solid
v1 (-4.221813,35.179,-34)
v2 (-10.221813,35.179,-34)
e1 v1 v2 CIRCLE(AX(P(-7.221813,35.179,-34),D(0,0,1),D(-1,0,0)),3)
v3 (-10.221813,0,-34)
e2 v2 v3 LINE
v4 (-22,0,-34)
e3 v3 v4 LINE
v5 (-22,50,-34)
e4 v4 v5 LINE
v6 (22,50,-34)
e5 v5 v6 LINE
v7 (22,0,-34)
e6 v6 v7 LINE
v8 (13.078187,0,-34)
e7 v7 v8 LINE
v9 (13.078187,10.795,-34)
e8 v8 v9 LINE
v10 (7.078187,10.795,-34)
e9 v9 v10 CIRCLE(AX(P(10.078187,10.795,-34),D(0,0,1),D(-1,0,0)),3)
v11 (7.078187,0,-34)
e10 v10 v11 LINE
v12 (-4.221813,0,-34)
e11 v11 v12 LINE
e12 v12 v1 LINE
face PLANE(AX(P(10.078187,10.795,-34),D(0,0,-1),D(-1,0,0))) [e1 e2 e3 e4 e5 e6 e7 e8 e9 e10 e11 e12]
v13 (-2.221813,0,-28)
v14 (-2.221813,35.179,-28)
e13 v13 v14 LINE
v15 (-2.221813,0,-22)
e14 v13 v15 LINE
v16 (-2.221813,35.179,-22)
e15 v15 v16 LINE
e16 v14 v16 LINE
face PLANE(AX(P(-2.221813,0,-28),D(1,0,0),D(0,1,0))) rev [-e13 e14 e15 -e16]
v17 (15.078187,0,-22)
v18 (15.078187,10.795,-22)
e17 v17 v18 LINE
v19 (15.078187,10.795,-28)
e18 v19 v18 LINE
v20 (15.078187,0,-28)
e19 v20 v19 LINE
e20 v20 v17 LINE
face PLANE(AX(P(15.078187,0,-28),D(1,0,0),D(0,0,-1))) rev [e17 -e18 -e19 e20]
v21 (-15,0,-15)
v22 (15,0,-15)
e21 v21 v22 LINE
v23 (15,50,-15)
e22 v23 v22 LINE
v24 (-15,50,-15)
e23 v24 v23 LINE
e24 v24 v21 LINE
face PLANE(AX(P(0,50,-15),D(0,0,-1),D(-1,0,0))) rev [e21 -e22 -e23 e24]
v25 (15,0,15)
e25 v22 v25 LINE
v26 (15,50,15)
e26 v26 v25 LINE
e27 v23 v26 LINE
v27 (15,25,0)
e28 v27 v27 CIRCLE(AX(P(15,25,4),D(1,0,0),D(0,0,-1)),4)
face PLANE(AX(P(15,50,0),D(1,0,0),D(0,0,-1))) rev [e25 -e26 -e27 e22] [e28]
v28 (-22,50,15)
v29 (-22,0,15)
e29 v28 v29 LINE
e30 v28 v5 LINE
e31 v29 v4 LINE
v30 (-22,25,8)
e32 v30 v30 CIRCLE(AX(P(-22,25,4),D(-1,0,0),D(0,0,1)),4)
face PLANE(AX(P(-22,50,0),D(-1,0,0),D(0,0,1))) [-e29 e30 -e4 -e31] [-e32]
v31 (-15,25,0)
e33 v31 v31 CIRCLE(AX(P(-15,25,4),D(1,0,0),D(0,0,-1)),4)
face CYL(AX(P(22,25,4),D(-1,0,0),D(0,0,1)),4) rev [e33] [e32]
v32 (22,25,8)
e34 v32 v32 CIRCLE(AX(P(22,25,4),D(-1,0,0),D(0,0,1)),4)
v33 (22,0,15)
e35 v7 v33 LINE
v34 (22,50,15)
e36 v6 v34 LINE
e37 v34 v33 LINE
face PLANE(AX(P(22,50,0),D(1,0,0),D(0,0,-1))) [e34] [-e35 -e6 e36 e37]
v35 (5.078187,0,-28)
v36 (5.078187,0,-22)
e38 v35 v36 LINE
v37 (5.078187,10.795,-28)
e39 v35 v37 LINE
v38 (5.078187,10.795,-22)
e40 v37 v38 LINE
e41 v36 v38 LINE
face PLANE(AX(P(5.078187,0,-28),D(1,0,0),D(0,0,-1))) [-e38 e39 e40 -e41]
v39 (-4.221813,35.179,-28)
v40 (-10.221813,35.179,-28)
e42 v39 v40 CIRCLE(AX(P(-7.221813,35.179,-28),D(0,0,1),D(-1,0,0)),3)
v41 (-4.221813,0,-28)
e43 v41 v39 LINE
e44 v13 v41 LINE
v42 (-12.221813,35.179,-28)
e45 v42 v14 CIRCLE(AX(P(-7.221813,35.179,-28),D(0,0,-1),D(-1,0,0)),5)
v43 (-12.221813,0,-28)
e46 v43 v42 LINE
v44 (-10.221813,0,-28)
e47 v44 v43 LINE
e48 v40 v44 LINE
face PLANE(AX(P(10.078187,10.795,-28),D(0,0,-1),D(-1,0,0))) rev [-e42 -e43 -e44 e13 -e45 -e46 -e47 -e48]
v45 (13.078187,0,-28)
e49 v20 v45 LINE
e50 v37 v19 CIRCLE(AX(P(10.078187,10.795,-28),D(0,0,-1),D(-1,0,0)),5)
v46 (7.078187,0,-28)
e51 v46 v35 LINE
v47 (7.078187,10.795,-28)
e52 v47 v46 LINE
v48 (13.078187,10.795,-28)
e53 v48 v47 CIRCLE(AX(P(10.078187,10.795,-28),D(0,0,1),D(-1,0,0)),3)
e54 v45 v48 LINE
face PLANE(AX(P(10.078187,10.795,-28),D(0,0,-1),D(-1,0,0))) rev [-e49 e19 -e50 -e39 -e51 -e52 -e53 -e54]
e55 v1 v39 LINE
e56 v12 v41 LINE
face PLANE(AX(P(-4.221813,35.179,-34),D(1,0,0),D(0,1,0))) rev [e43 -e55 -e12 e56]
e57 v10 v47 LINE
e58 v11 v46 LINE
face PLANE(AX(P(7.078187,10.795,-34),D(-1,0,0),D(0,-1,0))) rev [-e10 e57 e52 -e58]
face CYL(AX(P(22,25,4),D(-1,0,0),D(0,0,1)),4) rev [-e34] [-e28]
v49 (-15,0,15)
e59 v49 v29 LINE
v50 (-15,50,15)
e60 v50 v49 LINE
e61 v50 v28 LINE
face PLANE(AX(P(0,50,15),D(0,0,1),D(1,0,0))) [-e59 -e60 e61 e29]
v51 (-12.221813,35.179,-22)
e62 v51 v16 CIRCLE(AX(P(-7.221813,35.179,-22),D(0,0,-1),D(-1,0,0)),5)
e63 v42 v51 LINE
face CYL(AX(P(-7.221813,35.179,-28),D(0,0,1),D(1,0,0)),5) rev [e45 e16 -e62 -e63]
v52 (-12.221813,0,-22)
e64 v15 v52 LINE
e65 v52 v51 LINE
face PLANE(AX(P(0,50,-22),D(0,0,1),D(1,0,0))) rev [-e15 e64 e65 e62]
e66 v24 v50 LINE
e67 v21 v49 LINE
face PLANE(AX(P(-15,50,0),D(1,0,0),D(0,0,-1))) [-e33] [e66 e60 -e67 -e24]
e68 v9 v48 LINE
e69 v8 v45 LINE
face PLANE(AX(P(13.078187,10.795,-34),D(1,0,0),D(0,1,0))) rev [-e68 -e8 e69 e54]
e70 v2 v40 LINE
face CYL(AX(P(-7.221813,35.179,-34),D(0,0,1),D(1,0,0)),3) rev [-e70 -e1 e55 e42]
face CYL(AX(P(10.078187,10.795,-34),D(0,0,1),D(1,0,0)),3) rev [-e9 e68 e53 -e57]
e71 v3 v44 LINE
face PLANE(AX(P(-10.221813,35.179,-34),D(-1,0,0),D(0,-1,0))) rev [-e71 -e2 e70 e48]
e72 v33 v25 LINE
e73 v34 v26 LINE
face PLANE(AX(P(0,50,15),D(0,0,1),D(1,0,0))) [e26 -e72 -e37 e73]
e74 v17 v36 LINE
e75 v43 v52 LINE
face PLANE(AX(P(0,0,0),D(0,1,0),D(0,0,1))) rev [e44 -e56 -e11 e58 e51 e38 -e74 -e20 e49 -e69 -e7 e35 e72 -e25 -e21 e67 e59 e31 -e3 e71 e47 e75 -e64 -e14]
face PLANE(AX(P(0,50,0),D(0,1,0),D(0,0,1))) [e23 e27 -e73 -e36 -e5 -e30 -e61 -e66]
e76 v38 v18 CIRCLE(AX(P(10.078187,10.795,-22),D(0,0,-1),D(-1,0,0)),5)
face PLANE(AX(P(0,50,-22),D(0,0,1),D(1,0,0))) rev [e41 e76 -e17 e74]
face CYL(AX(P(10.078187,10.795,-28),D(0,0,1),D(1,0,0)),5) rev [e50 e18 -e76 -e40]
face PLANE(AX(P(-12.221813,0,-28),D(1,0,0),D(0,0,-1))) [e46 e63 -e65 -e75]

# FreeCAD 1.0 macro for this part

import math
import FreeCAD as App
import Part
import Sketcher

V = App.Vector
Q = App.Units.Quantity


def add_polygon(sketch, points):
    """Adds a closed chain of lines whose ends are joined by coincident constraints."""
    first, n = sketch.GeometryCount, len(points)
    for a, b in zip(points, points[1:] + points[:1]):
        sketch.addGeometry(Part.LineSegment(App.Vector(*a, 0), App.Vector(*b, 0)), False)
    for i in range(n):
        sketch.addConstraint(Sketcher.Constraint("Coincident", first + i, 2, first + (i + 1) % n, 1))

doc = App.newDocument("Part")
body = doc.addObject("PartDesign::Body", "Body")

sketch1 = doc.addObject("Sketcher::SketchObject", "Sketch")
body.addObject(sketch1)
sketch1.AttachmentSupport = (doc.XZ_Plane, [""])
sketch1.MapMode = "FlatFace"
add_polygon(sketch1, [(-15, 15), (-15, -15), (15, -15), (15, 15), (22, 15), (22, -22), (-22, -22), (-22, 15)])
sketch1.addConstraint([
    Sketcher.Constraint("Vertical", 0),
    Sketcher.Constraint("Horizontal", 1),
    Sketcher.Constraint("Vertical", 2),
    Sketcher.Constraint("Horizontal", 3),
    Sketcher.Constraint("Vertical", 4),
    Sketcher.Constraint("Horizontal", 5),
    Sketcher.Constraint("Vertical", 6),
    Sketcher.Constraint("Horizontal", 7),
    Sketcher.Constraint("Symmetric", 0, 2, 2, 2, -1, 1),
    Sketcher.Constraint("Symmetric", 3, 2, 6, 2, -2),
    Sketcher.Constraint("Equal", 1, 0),
    Sketcher.Constraint("DistanceX", 1, 1, 1, 2, Q("30 mm")),
    Sketcher.Constraint("DistanceX", 3, 1, 3, 2, Q("7 mm")),
    Sketcher.Constraint("DistanceY", 4, 2, 4, 1, Q("37 mm")),
])
pad1 = doc.addObject("PartDesign::Pad", "Pad")
body.addObject(pad1)
pad1.Profile = sketch1
pad1.Length = 50
pad1.Reversed = True

sketch2 = doc.addObject("Sketcher::SketchObject", "Sketch001")
body.addObject(sketch2)
sketch2.AttachmentSupport = (doc.XY_Plane, [""])
sketch2.MapMode = "FlatFace"
sketch2.AttachmentOffset = App.Placement(V(0, 0, -22), App.Rotation())
sketch2.addGeometry([
    Part.LineSegment(V(-12, 35, 0), V(-12, 0, 0)),
    Part.LineSegment(V(-12, 0, 0), V(-22, 0, 0)),
    Part.LineSegment(V(-22, 0, 0), V(-22, 50, 0)),
    Part.LineSegment(V(-22, 50, 0), V(22, 50, 0)),
    Part.LineSegment(V(22, 50, 0), V(22, 0, 0)),
    Part.LineSegment(V(22, 0, 0), V(15, 0, 0)),
    Part.LineSegment(V(15, 0, 0), V(15, 11, 0)),
    Part.ArcOfCircle(Part.Circle(V(10, 11, 0), V(0, 0, 1), 5), math.radians(0), math.radians(180)),
    Part.LineSegment(V(5, 11, 0), V(5, 0, 0)),
    Part.LineSegment(V(5, 0, 0), V(-2, 0, 0)),
    Part.LineSegment(V(-2, 0, 0), V(-2, 35, 0)),
    Part.ArcOfCircle(Part.Circle(V(-7, 35, 0), V(0, 0, 1), 5), math.radians(0), math.radians(180)),
], False)
sketch2.addConstraint([
    Sketcher.Constraint("Coincident", 0, 2, 1, 1),
    Sketcher.Constraint("Coincident", 1, 2, 2, 1),
    Sketcher.Constraint("Coincident", 2, 2, 3, 1),
    Sketcher.Constraint("Coincident", 3, 2, 4, 1),
    Sketcher.Constraint("Coincident", 4, 2, 5, 1),
    Sketcher.Constraint("Coincident", 5, 2, 6, 1),
    Sketcher.Constraint("Tangent", 6, 2, 7, 1),
    Sketcher.Constraint("Tangent", 7, 2, 8, 1),
    Sketcher.Constraint("Coincident", 8, 2, 9, 1),
    Sketcher.Constraint("Coincident", 9, 2, 10, 1),
    Sketcher.Constraint("Tangent", 10, 2, 11, 1),
    Sketcher.Constraint("Tangent", 11, 2, 0, 1),
    Sketcher.Constraint("Vertical", 0),
    Sketcher.Constraint("Horizontal", 1),
    Sketcher.Constraint("Vertical", 2),
    Sketcher.Constraint("Horizontal", 3),
    Sketcher.Constraint("Vertical", 4),
    Sketcher.Constraint("Horizontal", 5),
    Sketcher.Constraint("Vertical", 6),
    Sketcher.Constraint("Vertical", 8),
    Sketcher.Constraint("Horizontal", 9),
    Sketcher.Constraint("Vertical", 10),
    Sketcher.Constraint("Equal", 7, 11),
    Sketcher.Constraint("Symmetric", 1, 2, 4, 2, -1, 1),
    Sketcher.Constraint("PointOnObject", 0, 2, -1),
    Sketcher.Constraint("PointOnObject", 8, 2, -1),
    Sketcher.Constraint("Radius", 7, Q("5 mm")),
    Sketcher.Constraint("DistanceX", 3, 1, 3, 2, Q("44 mm")),
    Sketcher.Constraint("DistanceY", 2, 1, 2, 2, Q("50 mm")),
    Sketcher.Constraint("DistanceX", 9, 2, 9, 1, Q("7.3 mm")),
    Sketcher.Constraint("DistanceY", 0, 2, 0, 1, Q("35.179 mm")),
    Sketcher.Constraint("DistanceY", 6, 1, 6, 2, Q("10.795 mm")),
    Sketcher.Constraint("DistanceX", 1, 2, 1, 1, Q("9.778187 mm")),
])
pad2 = doc.addObject("PartDesign::Pad", "Pad001")
body.addObject(pad2)
pad2.Profile = sketch2
pad2.Length = 6
pad2.Reversed = True

sketch3 = doc.addObject("Sketcher::SketchObject", "Sketch002")
body.addObject(sketch3)
sketch3.AttachmentSupport = (doc.XY_Plane, [""])
sketch3.MapMode = "FlatFace"
sketch3.AttachmentOffset = App.Placement(V(0, 0, -28), App.Rotation())
sketch3.addGeometry([
    Part.LineSegment(V(7.1, 10.8, 0), V(7.1, 0, 0)),
    Part.LineSegment(V(7.1, 0, 0), V(-4.2, 0, 0)),
    Part.LineSegment(V(-4.2, 0, 0), V(-4.2, 35.2, 0)),
    Part.ArcOfCircle(Part.Circle(V(-7.2, 35.2, 0), V(0, 0, 1), 3), math.radians(0), math.radians(180)),
    Part.LineSegment(V(-10.2, 35.2, 0), V(-10.2, 0, 0)),
    Part.LineSegment(V(-10.2, 0, 0), V(-22, 0, 0)),
    Part.LineSegment(V(-22, 0, 0), V(-22, 50, 0)),
    Part.LineSegment(V(-22, 50, 0), V(22, 50, 0)),
    Part.LineSegment(V(22, 50, 0), V(22, 0, 0)),
    Part.LineSegment(V(22, 0, 0), V(13.1, 0, 0)),
    Part.LineSegment(V(13.1, 0, 0), V(13.1, 10.8, 0)),
    Part.ArcOfCircle(Part.Circle(V(10.1, 10.8, 0), V(0, 0, 1), 3), math.radians(0), math.radians(180)),
], False)
sketch3.addConstraint([
    Sketcher.Constraint("Coincident", 0, 2, 1, 1),
    Sketcher.Constraint("Coincident", 1, 2, 2, 1),
    Sketcher.Constraint("Tangent", 2, 2, 3, 1),
    Sketcher.Constraint("Tangent", 3, 2, 4, 1),
    Sketcher.Constraint("Coincident", 4, 2, 5, 1),
    Sketcher.Constraint("Coincident", 5, 2, 6, 1),
    Sketcher.Constraint("Coincident", 6, 2, 7, 1),
    Sketcher.Constraint("Coincident", 7, 2, 8, 1),
    Sketcher.Constraint("Coincident", 8, 2, 9, 1),
    Sketcher.Constraint("Coincident", 9, 2, 10, 1),
    Sketcher.Constraint("Tangent", 10, 2, 11, 1),
    Sketcher.Constraint("Tangent", 11, 2, 0, 1),
    Sketcher.Constraint("Vertical", 0),
    Sketcher.Constraint("Horizontal", 1),
    Sketcher.Constraint("Vertical", 2),
    Sketcher.Constraint("Vertical", 4),
    Sketcher.Constraint("Horizontal", 5),
    Sketcher.Constraint("Vertical", 6),
    Sketcher.Constraint("Horizontal", 7),
    Sketcher.Constraint("Vertical", 8),
    Sketcher.Constraint("Horizontal", 9),
    Sketcher.Constraint("Vertical", 10),
    Sketcher.Constraint("Equal", 3, 11),
    Sketcher.Constraint("Symmetric", 5, 2, 8, 2, -1, 1),
    Sketcher.Constraint("PointOnObject", 0, 2, -1),
    Sketcher.Constraint("PointOnObject", 4, 2, -1),
    Sketcher.Constraint("Radius", 3, Q("3 mm")),
    Sketcher.Constraint("DistanceX", 7, 1, 7, 2, Q("44 mm")),
    Sketcher.Constraint("DistanceY", 6, 1, 6, 2, Q("50 mm")),
    Sketcher.Constraint("DistanceX", 1, 2, 1, 1, Q("11.3 mm")),
    Sketcher.Constraint("DistanceY", 0, 2, 0, 1, Q("10.795 mm")),
    Sketcher.Constraint("DistanceY", 2, 1, 2, 2, Q("35.179 mm")),
    Sketcher.Constraint("DistanceX", 5, 2, 5, 1, Q("11.778187 mm")),
])
pad3 = doc.addObject("PartDesign::Pad", "Pad002")
body.addObject(pad3)
pad3.Profile = sketch3
pad3.Length = 6
pad3.Reversed = True

sketch4 = doc.addObject("Sketcher::SketchObject", "Sketch003")
body.addObject(sketch4)
sketch4.AttachmentSupport = (doc.YZ_Plane, [""])
sketch4.MapMode = "FlatFace"
sketch4.AttachmentOffset = App.Placement(V(0, 0, -22), App.Rotation())
sketch4.addGeometry([
    Part.ArcOfCircle(Part.Circle(V(25, 4, 0), V(0, 0, 1), 4), math.radians(180), math.radians(270)),
    Part.ArcOfCircle(Part.Circle(V(25, 4, 0), V(0, 0, 1), 4), math.radians(90), math.radians(180)),
    Part.ArcOfCircle(Part.Circle(V(25, 4, 0), V(0, 0, 1), 4), math.radians(0), math.radians(90)),
    Part.ArcOfCircle(Part.Circle(V(25, 4, 0), V(0, 0, 1), 4), math.radians(-90), math.radians(0)),
], False)
sketch4.addConstraint([
    Sketcher.Constraint("Tangent", 0, 1, 1, 2),
    Sketcher.Constraint("Tangent", 1, 1, 2, 2),
    Sketcher.Constraint("Tangent", 2, 1, 3, 2),
    Sketcher.Constraint("Tangent", 3, 1, 0, 2),
    Sketcher.Constraint("Equal", 0, 1),
    Sketcher.Constraint("PointOnObject", 3, 1, -1),
    Sketcher.Constraint("Horizontal", 3, 3, 0, 1),
    Sketcher.Constraint("Horizontal", 0, 1, 2, 1),
    Sketcher.Constraint("Vertical", 3, 3, 1, 1),
    Sketcher.Constraint("Vertical", 1, 1, 3, 1),
    Sketcher.Constraint("Radius", 0, Q("4 mm")),
    Sketcher.Constraint("DistanceX", -1, 1, 0, 3, Q("25 mm")),
])
pocket1 = doc.addObject("PartDesign::Pocket", "Pocket")
body.addObject(pocket1)
pocket1.Profile = sketch4
pocket1.Type = "ThroughAll"
pocket1.Reversed = True

doc.recompute()
